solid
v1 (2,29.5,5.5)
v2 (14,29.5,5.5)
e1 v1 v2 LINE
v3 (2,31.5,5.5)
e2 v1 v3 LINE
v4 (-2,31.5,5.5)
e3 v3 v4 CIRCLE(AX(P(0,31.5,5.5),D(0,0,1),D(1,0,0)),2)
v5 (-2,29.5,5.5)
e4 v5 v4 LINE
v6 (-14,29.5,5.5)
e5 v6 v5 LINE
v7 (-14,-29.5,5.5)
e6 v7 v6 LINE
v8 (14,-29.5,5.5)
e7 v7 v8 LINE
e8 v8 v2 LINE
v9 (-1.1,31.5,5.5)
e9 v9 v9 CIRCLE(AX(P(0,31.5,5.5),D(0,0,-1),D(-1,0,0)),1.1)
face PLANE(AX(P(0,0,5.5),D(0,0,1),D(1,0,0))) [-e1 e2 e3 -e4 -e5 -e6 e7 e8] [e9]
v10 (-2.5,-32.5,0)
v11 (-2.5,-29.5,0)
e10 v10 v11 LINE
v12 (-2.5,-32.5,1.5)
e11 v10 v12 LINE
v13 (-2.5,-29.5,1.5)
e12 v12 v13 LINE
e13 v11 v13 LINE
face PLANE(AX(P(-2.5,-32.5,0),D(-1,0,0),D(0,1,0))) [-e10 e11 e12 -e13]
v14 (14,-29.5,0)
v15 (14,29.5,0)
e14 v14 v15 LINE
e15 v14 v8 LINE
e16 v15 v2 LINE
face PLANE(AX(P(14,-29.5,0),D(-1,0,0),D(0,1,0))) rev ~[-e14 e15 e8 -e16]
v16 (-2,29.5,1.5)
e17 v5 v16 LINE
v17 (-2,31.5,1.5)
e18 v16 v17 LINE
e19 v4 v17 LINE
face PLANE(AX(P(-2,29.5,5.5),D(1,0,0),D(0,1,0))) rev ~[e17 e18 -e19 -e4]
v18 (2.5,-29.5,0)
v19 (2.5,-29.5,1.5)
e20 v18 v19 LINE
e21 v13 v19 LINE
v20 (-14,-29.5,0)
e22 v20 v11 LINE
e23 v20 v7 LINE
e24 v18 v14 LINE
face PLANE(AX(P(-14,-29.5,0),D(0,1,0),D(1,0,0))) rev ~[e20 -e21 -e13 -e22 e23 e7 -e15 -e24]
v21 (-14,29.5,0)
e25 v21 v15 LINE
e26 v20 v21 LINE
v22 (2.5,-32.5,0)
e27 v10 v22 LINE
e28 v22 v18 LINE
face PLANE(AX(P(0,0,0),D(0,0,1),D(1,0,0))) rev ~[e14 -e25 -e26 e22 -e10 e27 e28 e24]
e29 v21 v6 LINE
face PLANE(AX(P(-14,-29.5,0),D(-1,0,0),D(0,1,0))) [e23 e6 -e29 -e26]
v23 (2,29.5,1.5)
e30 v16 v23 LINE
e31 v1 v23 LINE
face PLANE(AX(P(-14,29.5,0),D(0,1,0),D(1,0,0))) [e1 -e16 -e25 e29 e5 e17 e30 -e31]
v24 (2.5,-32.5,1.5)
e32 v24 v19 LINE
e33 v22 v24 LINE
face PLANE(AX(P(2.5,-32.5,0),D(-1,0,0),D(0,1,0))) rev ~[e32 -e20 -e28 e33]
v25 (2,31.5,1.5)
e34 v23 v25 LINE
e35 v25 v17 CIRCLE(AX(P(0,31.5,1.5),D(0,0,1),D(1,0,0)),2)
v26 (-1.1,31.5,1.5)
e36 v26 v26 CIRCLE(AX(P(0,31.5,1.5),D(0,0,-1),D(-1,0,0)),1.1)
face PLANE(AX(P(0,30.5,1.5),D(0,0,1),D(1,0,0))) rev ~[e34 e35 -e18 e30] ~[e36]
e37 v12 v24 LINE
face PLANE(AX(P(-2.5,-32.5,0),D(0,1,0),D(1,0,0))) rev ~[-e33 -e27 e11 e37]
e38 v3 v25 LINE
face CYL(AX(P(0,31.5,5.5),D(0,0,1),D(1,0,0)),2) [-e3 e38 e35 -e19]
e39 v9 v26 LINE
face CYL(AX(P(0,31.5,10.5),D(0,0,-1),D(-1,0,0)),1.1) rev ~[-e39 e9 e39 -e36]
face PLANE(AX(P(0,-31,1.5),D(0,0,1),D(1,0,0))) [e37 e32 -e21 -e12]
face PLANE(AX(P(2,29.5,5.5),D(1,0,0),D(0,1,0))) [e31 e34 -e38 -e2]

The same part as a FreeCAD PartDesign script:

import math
import FreeCAD as App
import Part
import Sketcher

V = App.Vector


def add_polygon(sketch, points):
    """Adds a closed chain of lines whose ends are joined by coincident constraints."""
    first, n = sketch.GeometryCount, len(points)
    for a, b in zip(points, points[1:] + points[:1]):
        sketch.addGeometry(Part.LineSegment(App.Vector(*a, 0), App.Vector(*b, 0)), False)
    for i in range(n):
        sketch.addConstraint(Sketcher.Constraint("Coincident", first + i, 2, first + (i + 1) % n, 1))

doc = App.newDocument("Part")
body = doc.addObject("PartDesign::Body", "Body")

# Sketch on XY plane
sketch1 = doc.addObject("Sketcher::SketchObject", "Sketch")
body.addObject(sketch1)
sketch1.AttachmentSupport = (doc.XY_Plane, [""])
sketch1.MapMode = "FlatFace"
add_polygon(sketch1, [(-14, 29.5), (-14, -29.5), (14, -29.5), (14, 29.5)])  # lines 0-3
sketch1.addConstraint([
    Sketcher.Constraint("Vertical", 0),
    Sketcher.Constraint("Horizontal", 1),
    Sketcher.Constraint("Vertical", 2),
    Sketcher.Constraint("Horizontal", 3),
    Sketcher.Constraint("Symmetric", 0, 2, 2, 2, -1, 1),
    Sketcher.Constraint("DistanceX", 1, 1, 1, 2, 28.0),
    Sketcher.Constraint("DistanceY", 0, 2, 0, 1, 59.0),
])
pad1 = doc.addObject("PartDesign::Pad", "Pad")
body.addObject(pad1)
pad1.Profile = sketch1
pad1.Length = 5.5

# Sketch on XY plane
sketch2 = doc.addObject("Sketcher::SketchObject", "Sketch001")
body.addObject(sketch2)
sketch2.AttachmentSupport = (doc.XY_Plane, [""])
sketch2.MapMode = "FlatFace"
add_polygon(sketch2, [(-2.5, -29.5), (-2.5, -32.5), (2.5, -32.5), (2.5, -29.5)])  # lines 0-3
sketch2.addConstraint([
    Sketcher.Constraint("Vertical", 0),
    Sketcher.Constraint("Horizontal", 1),
    Sketcher.Constraint("Vertical", 2),
    Sketcher.Constraint("Horizontal", 3),
    Sketcher.Constraint("DistanceX", 1, 1, 1, 2, 5.0),
    Sketcher.Constraint("DistanceY", 0, 2, 0, 1, 3.0),
    Sketcher.Constraint("DistanceX", 0, 2, -1, 1, 2.5),
    Sketcher.Constraint("DistanceY", 0, 2, -1, 1, 32.5),
])
pad2 = doc.addObject("PartDesign::Pad", "Pad001")
body.addObject(pad2)
pad2.Profile = sketch2
pad2.Length = 1.5

# Sketch on XY plane
sketch3 = doc.addObject("Sketcher::SketchObject", "Sketch002")
body.addObject(sketch3)
sketch3.AttachmentSupport = (doc.XY_Plane, [""])
sketch3.MapMode = "FlatFace"
sketch3.AttachmentOffset = App.Placement(V(0, 0, 5.5), App.Rotation())
sketch3.addGeometry([
    Part.LineSegment(V(-2, 31.5, 0), V(-2, 29.5, 0)),
    Part.LineSegment(V(-2, 29.5, 0), V(2, 29.5, 0)),
    Part.LineSegment(V(2, 29.5, 0), V(2, 31.5, 0)),
    Part.ArcOfCircle(Part.Circle(V(0, 31.5, 0), V(0, 0, 1), 2), math.radians(0), math.radians(180)),
], False)
sketch3.addConstraint([
    Sketcher.Constraint("Coincident", 0, 2, 1, 1),
    Sketcher.Constraint("Coincident", 1, 2, 2, 1),
    Sketcher.Constraint("Tangent", 2, 2, 3, 1),
    Sketcher.Constraint("Tangent", 3, 2, 0, 1),
    Sketcher.Constraint("Vertical", 0),
    Sketcher.Constraint("Horizontal", 1),
    Sketcher.Constraint("Vertical", 2),
    Sketcher.Constraint("PointOnObject", 3, 3, -2),
    Sketcher.Constraint("Radius", 3, 2.0),
    Sketcher.Constraint("DistanceY", 0, 2, 0, 1, 2.0),
    Sketcher.Constraint("DistanceY", -1, 1, 3, 3, 31.5),
])
pad3 = doc.addObject("PartDesign::Pad", "Pad002")
body.addObject(pad3)
pad3.Profile = sketch3
pad3.Length = 4
pad3.Reversed = True

# Sketch on XY plane
sketch4 = doc.addObject("Sketcher::SketchObject", "Sketch003")
body.addObject(sketch4)
sketch4.AttachmentSupport = (doc.XY_Plane, [""])
sketch4.MapMode = "FlatFace"
sketch4.AttachmentOffset = App.Placement(V(0, 0, 5.5), App.Rotation())
sketch4.addGeometry(Part.Circle(V(0, 31.5, 0), V(0, 0, 1), 1.1), False)
sketch4.addConstraint([
    Sketcher.Constraint("PointOnObject", 0, 3, -2),
    Sketcher.Constraint("Diameter", 0, 2.2),
    Sketcher.Constraint("DistanceY", -1, 1, 0, 3, 31.5),
])
doc.recompute()
hole = doc.addObject("PartDesign::Hole", "Hole")
body.addObject(hole)
hole.Profile = sketch4
hole.ThreadType = "None"
hole.Diameter = 2.2
hole.DepthType = "Dimension"
hole.Depth = 5
hole.DrillPoint = "Flat"

doc.recompute()
